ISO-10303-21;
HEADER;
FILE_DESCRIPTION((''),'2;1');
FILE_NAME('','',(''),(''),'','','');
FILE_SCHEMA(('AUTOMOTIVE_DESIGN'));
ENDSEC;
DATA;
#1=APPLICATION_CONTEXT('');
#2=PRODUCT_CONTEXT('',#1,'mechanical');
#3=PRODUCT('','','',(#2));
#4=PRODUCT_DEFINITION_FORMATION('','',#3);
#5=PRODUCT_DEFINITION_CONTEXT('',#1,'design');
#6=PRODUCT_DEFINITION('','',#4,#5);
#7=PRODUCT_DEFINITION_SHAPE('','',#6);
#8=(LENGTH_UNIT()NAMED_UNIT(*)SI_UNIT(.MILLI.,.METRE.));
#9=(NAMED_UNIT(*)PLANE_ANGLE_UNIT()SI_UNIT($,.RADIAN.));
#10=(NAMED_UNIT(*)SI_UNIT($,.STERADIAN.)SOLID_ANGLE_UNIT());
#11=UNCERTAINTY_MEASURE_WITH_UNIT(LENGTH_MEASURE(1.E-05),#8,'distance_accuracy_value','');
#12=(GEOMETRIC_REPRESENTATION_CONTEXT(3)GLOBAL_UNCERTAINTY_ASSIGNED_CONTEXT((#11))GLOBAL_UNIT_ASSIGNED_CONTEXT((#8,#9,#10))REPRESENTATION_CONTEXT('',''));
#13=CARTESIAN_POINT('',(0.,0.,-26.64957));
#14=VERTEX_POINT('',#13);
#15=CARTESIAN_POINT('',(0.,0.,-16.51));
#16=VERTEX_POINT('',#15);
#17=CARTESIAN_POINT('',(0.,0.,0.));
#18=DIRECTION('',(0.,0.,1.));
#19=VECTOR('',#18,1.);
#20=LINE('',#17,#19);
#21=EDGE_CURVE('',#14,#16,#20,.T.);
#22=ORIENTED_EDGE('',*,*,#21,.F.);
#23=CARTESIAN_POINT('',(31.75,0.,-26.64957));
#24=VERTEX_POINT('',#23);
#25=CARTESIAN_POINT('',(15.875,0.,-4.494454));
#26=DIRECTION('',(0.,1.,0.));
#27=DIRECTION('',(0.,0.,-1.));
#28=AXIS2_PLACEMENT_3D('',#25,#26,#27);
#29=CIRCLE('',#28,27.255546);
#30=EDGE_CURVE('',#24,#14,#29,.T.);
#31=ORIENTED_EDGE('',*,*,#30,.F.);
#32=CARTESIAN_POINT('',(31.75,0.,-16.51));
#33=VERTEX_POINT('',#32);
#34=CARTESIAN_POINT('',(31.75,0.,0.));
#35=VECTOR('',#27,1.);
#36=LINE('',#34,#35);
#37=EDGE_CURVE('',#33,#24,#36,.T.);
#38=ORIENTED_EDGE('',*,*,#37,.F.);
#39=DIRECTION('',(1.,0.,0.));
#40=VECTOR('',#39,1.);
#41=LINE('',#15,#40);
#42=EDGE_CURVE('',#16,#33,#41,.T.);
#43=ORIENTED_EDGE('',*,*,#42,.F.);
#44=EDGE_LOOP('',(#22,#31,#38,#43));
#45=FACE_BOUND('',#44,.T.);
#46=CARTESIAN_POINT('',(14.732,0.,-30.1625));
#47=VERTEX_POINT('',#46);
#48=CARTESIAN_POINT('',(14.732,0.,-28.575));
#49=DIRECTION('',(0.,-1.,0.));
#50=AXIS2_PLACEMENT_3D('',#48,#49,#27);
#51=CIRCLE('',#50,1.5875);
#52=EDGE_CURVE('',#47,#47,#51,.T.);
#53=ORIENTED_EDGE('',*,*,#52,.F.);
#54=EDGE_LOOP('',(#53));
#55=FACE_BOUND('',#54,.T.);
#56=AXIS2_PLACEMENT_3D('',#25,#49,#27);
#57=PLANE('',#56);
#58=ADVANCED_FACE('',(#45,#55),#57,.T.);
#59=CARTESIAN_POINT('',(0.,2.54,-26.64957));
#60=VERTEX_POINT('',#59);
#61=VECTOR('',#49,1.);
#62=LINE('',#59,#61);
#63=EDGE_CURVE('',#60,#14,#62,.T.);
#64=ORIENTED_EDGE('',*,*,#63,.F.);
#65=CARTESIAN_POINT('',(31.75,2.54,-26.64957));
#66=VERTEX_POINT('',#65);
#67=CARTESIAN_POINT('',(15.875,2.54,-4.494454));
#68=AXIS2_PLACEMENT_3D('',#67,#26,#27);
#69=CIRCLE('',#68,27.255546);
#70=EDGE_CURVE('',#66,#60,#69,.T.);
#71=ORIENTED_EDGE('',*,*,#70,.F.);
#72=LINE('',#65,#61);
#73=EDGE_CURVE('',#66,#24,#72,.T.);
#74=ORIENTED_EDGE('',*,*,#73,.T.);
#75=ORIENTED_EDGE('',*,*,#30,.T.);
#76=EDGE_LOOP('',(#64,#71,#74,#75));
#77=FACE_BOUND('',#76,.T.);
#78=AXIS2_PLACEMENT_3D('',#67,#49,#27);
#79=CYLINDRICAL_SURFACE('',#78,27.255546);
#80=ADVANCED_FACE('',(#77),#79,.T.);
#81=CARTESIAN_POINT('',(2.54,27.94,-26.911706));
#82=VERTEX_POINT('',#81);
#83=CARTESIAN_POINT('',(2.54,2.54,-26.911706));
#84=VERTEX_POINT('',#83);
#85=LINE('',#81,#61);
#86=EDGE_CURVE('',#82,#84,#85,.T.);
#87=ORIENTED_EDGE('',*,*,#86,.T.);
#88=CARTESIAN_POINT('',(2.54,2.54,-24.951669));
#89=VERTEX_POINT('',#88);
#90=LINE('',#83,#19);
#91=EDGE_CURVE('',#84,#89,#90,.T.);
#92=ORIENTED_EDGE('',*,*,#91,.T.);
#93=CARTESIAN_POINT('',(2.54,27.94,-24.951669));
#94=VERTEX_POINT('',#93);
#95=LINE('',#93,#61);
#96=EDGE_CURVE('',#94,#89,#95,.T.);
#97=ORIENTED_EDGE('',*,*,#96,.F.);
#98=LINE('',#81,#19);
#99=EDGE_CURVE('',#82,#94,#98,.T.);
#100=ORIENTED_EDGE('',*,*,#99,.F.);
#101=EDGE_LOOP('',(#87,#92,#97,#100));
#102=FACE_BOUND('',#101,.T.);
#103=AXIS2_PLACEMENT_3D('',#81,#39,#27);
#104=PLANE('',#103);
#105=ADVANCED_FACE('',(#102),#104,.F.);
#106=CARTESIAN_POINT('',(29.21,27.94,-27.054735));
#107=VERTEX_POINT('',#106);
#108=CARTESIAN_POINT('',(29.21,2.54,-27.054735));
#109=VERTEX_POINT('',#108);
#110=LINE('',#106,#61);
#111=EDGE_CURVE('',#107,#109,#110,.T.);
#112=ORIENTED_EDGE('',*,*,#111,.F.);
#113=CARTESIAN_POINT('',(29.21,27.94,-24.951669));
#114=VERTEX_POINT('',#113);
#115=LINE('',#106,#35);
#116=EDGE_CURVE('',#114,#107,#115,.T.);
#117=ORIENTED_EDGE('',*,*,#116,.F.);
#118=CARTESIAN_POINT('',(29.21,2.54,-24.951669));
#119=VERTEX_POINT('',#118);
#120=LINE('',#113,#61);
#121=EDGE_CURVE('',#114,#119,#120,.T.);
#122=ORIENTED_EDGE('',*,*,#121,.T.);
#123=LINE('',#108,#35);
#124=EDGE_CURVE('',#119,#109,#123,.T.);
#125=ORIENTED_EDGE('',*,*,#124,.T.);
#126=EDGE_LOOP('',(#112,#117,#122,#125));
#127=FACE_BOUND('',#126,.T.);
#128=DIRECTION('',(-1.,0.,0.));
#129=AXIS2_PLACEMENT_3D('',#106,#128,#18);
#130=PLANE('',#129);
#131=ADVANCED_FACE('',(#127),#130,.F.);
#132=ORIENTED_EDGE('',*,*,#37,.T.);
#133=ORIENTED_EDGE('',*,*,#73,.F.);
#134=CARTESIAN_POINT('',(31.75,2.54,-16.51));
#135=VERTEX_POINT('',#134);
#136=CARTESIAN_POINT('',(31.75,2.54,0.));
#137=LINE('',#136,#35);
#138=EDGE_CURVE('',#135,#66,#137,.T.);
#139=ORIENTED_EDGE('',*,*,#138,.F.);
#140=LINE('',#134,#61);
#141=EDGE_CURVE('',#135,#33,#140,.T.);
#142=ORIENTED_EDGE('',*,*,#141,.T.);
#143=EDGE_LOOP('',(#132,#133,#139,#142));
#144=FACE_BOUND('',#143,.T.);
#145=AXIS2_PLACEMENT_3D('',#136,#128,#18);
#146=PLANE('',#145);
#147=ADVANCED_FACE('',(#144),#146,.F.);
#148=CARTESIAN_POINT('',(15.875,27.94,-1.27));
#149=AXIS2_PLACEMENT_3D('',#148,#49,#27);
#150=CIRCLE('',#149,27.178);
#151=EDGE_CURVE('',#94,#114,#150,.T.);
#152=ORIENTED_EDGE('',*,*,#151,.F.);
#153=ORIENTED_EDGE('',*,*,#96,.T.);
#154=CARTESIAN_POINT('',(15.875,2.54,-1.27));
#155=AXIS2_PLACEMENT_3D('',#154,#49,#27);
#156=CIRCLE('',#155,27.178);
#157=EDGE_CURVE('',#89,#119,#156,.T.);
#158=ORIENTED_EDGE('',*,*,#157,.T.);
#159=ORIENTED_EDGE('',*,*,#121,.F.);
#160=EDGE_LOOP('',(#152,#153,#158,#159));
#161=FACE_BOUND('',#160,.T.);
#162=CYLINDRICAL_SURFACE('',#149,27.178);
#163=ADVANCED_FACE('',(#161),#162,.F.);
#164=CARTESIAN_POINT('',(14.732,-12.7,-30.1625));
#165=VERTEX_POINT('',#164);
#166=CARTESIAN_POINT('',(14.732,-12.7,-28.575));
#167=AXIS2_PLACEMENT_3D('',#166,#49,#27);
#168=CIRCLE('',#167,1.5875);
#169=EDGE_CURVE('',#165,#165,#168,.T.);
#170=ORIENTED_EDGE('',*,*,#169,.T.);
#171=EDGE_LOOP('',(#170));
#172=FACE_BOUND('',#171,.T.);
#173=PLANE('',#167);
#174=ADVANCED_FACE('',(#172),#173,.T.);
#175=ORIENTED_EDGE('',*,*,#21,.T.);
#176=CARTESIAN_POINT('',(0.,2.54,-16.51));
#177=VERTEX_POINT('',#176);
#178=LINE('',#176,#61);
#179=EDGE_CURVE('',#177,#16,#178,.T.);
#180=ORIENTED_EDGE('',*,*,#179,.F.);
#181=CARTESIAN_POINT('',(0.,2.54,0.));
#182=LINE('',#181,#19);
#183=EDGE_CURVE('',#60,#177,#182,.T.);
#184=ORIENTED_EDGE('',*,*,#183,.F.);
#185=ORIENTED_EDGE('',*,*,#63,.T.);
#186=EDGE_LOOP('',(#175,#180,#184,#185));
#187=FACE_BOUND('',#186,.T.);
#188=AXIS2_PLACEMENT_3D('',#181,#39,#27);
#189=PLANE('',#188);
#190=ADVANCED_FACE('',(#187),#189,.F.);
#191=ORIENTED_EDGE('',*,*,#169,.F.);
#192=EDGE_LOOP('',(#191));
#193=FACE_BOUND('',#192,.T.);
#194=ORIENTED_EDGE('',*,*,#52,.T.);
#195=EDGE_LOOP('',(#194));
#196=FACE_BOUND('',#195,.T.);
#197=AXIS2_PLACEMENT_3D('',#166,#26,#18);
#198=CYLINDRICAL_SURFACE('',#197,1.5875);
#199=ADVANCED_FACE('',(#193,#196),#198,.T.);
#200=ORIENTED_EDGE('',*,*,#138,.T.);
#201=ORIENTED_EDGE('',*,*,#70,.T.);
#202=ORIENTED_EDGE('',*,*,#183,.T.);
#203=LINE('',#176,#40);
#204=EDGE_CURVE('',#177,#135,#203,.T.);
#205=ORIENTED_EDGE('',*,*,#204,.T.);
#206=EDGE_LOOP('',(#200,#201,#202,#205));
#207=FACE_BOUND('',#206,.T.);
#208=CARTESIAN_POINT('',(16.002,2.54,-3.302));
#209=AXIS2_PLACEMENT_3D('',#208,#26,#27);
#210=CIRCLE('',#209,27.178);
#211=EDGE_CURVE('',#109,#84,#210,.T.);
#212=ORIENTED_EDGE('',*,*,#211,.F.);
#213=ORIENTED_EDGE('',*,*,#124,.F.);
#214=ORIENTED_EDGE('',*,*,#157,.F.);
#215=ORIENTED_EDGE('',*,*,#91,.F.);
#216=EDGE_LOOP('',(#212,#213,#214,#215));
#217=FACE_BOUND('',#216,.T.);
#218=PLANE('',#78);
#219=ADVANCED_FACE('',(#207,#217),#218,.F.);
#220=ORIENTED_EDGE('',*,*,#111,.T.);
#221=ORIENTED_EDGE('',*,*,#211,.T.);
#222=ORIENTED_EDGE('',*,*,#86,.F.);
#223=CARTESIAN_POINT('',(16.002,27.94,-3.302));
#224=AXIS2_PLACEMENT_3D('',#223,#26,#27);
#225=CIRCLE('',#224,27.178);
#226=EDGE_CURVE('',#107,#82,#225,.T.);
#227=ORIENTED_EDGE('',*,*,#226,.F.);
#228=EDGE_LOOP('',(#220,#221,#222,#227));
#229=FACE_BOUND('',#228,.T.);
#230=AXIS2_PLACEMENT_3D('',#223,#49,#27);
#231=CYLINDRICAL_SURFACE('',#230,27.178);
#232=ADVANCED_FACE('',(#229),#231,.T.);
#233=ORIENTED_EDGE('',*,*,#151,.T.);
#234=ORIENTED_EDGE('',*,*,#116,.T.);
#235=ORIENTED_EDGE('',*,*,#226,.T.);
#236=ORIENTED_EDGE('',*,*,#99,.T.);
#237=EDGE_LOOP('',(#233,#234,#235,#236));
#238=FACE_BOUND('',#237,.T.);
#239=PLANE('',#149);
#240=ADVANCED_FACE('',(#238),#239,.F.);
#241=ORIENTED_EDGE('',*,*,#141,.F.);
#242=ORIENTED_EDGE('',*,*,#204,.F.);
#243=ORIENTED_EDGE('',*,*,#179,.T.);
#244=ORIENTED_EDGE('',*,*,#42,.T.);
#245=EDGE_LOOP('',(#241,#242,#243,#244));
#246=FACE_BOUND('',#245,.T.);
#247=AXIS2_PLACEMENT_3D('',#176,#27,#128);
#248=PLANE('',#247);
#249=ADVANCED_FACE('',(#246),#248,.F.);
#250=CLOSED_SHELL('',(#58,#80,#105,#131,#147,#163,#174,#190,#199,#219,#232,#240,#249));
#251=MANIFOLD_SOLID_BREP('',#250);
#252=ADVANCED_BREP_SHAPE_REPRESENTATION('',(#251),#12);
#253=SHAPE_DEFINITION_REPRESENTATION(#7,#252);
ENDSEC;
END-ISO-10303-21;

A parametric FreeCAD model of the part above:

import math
import FreeCAD as App
import Part
import Sketcher
Q = App.Units.Quantity

doc = App.newDocument("Part")
body = doc.addObject("PartDesign::Body", "Body")

# Sketch on XZ plane
sketch1 = body.newObject("Sketcher::SketchObject", "Sketch")
sketch1.AttachmentSupport = (doc.getObject("XZ_Plane"), [""])
sketch1.MapMode = "FlatFace"
sketch1.addGeometry([
    Part.LineSegment(App.Vector(0, 0, 0), App.Vector(32, 0, 0)),
    Part.LineSegment(App.Vector(32, 0, 0), App.Vector(32, -27, 0)),
    Part.ArcOfCircle(Part.Circle(App.Vector(16, -4, 0), App.Vector(0, 0, 1), 27), math.radians(-126), math.radians(-54)),
    Part.LineSegment(App.Vector(0, -27, 0), App.Vector(0, 0, 0)),
], False)
sketch1.addConstraint([
    Sketcher.Constraint("Coincident", 0, 2, 1, 1),
    Sketcher.Constraint("Coincident", 1, 2, 2, 2),
    Sketcher.Constraint("Coincident", 2, 1, 3, 1),
    Sketcher.Constraint("Coincident", 3, 2, 0, 1),
    Sketcher.Constraint("Horizontal", 0),
    Sketcher.Constraint("Vertical", 1),
    Sketcher.Constraint("Vertical", 3),
    Sketcher.Constraint("Coincident", 3, 2, -1, 1),
    Sketcher.Constraint("Horizontal", 1, 2, 2, 1),
    Sketcher.Constraint("DistanceX", 0, 1, 0, 2, Q("1.25 in")),
    Sketcher.Constraint("Radius", 2, Q("27.255546 mm")),
    Sketcher.Constraint("DistanceY", 1, 2, 1, 1, Q("26.64957 mm")),
])
pad1 = body.newObject("PartDesign::Pad", "Pad")
pad1.Profile = sketch1
pad1.Length = Q("0.1 in")
pad1.Reversed = True

# Sketch on XZ plane
sketch2 = body.newObject("Sketcher::SketchObject", "Sketch001")
sketch2.AttachmentSupport = (doc.getObject("XZ_Plane"), [""])
sketch2.MapMode = "FlatFace"
sketch2.AttachmentOffset = App.Placement(App.Vector(0, 0, -0.1 * 25.4), App.Rotation())
sketch2.addGeometry([
    Part.LineSegment(App.Vector(2.5, -26.9, 0), App.Vector(2.5, -25, 0)),
    Part.ArcOfCircle(Part.Circle(App.Vector(15.9, -1.3, 0), App.Vector(0, 0, 1), 27.2), math.radians(-119), math.radians(-61)),
    Part.LineSegment(App.Vector(29.2, -25, 0), App.Vector(29.2, -27.1, 0)),
    Part.ArcOfCircle(Part.Circle(App.Vector(16, -3.3, 0), App.Vector(0, 0, 1), 27.2), math.radians(-120), math.radians(-61)),
], False)
sketch2.addConstraint([
    Sketcher.Constraint("Coincident", 0, 2, 1, 1),
    Sketcher.Constraint("Coincident", 1, 2, 2, 1),
    Sketcher.Constraint("Coincident", 2, 2, 3, 2),
    Sketcher.Constraint("Coincident", 3, 1, 0, 1),
    Sketcher.Constraint("Vertical", 0),
    Sketcher.Constraint("Vertical", 2),
    Sketcher.Constraint("Equal", 1, 3),
    Sketcher.Constraint("Horizontal", 0, 2, 1, 2),
    Sketcher.Constraint("Radius", 1, Q("1.07 in")),
    Sketcher.Constraint("DistanceX", -1, 1, 0, 2, Q("0.1 in")),
    Sketcher.Constraint("DistanceY", 1, 3, -1, 1, Q("0.05 in")),
    Sketcher.Constraint("DistanceX", -1, 1, 3, 3, Q("0.63 in")),
    Sketcher.Constraint("DistanceY", 3, 3, -1, 1, Q("0.13 in")),
    Sketcher.Constraint("DistanceX", -1, 1, 1, 2, Q("1.15 in")),
])
pad2 = body.newObject("PartDesign::Pad", "Pad001")
pad2.Profile = sketch2
pad2.Length = Q("1 in")
pad2.Reversed = True

# Sketch on XZ plane
sketch3 = body.newObject("Sketcher::SketchObject", "Sketch002")
sketch3.AttachmentSupport = (doc.getObject("XZ_Plane"), [""])
sketch3.MapMode = "FlatFace"
sketch3.addGeometry([
    Part.LineSegment(App.Vector(0, 0, 0), App.Vector(0, -17, 0)),
    Part.LineSegment(App.Vector(0, -17, 0), App.Vector(32, -17, 0)),
    Part.LineSegment(App.Vector(32, -17, 0), App.Vector(32, 0, 0)),
    Part.LineSegment(App.Vector(32, 0, 0), App.Vector(0, 0, 0)),
], False)
sketch3.addConstraint([
    Sketcher.Constraint("Coincident", 0, 2, 1, 1),
    Sketcher.Constraint("Coincident", 1, 2, 2, 1),
    Sketcher.Constraint("Coincident", 2, 2, 3, 1),
    Sketcher.Constraint("Coincident", 3, 2, 0, 1),
    Sketcher.Constraint("Vertical", 0),
    Sketcher.Constraint("Horizontal", 1),
    Sketcher.Constraint("Vertical", 2),
    Sketcher.Constraint("Horizontal", 3),
    Sketcher.Constraint("Coincident", 3, 2, -1, 1),
    Sketcher.Constraint("DistanceX", 1, 1, 1, 2, Q("1.25 in")),
    Sketcher.Constraint("DistanceY", 0, 2, 0, 1, Q("0.65 in")),
])
pocket1 = body.newObject("PartDesign::Pocket", "Pocket")
pocket1.Profile = sketch3
pocket1.Length = Q("0.1 in")

# Sketch on XZ plane
sketch4 = body.newObject("Sketcher::SketchObject", "Sketch003")
sketch4.AttachmentSupport = (doc.getObject("XZ_Plane"), [""])
sketch4.MapMode = "FlatFace"
sketch4.addGeometry(Part.Circle(App.Vector(14.7, -28.6, 0), App.Vector(0, 0, 1), 1.6), False)
sketch4.addConstraint([
    Sketcher.Constraint("Diameter", 0, Q("0.125 in")),
    Sketcher.Constraint("DistanceX", -1, 1, 0, 3, Q("0.58 in")),
    Sketcher.Constraint("DistanceY", 0, 3, -1, 1, Q("1.125 in")),
])
pad3 = body.newObject("PartDesign::Pad", "Pad002")
pad3.Profile = sketch4
pad3.Length = Q("0.5 in")

doc.recompute()
